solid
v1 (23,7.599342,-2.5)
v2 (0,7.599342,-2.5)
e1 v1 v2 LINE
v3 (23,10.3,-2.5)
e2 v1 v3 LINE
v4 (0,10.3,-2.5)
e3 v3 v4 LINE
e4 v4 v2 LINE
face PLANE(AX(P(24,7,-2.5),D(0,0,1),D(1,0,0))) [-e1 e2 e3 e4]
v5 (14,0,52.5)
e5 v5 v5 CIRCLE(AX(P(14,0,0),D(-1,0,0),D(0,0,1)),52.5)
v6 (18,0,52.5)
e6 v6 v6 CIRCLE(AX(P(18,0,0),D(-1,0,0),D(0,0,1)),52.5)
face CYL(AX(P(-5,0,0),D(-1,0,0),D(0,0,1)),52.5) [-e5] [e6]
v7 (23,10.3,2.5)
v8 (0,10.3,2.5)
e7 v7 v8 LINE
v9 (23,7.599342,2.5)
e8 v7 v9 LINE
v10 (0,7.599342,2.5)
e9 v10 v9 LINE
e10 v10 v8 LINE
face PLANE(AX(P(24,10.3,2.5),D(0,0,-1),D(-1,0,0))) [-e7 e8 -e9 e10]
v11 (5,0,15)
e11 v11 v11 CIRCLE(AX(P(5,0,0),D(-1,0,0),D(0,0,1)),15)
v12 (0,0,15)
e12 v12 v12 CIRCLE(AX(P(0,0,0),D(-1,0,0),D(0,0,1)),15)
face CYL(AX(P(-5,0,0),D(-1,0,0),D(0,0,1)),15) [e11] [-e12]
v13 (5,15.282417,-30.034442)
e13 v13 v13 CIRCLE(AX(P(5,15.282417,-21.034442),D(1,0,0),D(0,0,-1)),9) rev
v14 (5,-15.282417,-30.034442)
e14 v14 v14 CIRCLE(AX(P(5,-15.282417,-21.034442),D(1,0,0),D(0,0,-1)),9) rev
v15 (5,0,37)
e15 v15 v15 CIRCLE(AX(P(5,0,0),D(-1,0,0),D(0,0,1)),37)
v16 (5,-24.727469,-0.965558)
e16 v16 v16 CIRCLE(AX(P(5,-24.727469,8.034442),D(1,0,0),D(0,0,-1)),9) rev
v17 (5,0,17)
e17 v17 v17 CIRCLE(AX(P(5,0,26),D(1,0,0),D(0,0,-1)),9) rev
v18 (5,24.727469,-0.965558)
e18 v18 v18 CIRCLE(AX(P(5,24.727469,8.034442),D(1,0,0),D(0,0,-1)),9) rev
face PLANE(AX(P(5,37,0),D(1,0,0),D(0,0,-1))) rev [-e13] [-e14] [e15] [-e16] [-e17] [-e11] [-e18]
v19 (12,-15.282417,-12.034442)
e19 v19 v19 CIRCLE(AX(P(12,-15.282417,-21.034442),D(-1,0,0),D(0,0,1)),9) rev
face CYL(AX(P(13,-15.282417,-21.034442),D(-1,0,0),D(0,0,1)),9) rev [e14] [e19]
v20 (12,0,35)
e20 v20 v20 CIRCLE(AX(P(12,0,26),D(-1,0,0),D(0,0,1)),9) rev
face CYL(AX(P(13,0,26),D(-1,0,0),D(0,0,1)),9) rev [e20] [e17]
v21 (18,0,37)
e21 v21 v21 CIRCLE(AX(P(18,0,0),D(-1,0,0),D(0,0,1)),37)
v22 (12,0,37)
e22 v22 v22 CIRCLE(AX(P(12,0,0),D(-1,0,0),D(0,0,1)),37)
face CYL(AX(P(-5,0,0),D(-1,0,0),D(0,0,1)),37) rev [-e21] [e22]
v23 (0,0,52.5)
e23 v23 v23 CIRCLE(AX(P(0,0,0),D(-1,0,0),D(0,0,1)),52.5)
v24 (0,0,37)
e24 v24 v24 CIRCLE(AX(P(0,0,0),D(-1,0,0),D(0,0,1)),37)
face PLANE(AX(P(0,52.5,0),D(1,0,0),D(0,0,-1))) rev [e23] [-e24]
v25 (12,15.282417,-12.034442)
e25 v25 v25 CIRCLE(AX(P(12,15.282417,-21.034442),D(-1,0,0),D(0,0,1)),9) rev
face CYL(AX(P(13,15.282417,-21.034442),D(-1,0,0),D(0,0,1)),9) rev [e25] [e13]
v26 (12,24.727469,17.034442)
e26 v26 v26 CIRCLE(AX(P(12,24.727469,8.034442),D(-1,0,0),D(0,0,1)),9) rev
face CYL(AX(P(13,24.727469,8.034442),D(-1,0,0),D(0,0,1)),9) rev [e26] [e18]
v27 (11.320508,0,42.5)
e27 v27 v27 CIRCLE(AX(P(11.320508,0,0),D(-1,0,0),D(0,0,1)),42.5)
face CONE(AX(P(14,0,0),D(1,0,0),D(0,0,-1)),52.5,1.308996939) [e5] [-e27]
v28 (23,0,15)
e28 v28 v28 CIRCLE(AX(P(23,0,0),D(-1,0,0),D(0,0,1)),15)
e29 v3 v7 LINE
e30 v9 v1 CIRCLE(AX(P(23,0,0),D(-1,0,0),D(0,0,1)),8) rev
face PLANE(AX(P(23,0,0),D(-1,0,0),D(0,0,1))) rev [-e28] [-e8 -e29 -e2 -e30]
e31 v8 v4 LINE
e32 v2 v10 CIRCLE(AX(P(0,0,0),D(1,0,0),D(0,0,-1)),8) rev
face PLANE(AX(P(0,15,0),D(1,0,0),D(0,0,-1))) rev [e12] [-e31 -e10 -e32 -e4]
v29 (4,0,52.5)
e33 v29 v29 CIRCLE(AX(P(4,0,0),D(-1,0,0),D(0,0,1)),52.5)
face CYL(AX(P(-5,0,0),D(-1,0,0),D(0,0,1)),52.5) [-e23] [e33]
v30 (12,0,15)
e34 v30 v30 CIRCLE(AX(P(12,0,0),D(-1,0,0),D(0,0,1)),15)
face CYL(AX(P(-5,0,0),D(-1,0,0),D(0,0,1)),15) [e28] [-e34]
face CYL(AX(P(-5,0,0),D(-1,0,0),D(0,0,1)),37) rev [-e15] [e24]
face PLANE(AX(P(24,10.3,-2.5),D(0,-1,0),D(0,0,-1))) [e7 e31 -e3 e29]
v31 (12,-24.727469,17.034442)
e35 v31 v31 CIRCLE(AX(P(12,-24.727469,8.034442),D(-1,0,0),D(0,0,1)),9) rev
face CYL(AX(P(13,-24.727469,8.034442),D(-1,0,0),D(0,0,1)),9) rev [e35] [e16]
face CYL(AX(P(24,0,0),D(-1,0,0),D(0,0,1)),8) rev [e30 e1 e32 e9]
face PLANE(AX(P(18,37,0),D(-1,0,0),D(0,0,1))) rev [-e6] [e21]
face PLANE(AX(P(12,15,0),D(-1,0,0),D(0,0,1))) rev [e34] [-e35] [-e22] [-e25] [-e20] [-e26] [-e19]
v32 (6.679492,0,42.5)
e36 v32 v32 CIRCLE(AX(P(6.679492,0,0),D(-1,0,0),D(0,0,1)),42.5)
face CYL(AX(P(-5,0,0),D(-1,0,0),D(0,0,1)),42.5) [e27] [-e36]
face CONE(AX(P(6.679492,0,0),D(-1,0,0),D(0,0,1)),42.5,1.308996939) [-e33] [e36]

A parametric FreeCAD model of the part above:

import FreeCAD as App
import Part
import Sketcher

V = App.Vector
Q = App.Units.Quantity

doc = App.newDocument("Part")
body = doc.addObject("PartDesign::Body", "Body")

# Sketch on XY plane
sketch1 = doc.addObject("Sketcher::SketchObject", "Sketch")
body.addObject(sketch1)
sketch1.AttachmentSupport = (doc.XY_Plane, [""])
sketch1.MapMode = "FlatFace"
sketch1.addGeometry([
    Part.LineSegment(V(0, 0, 0), V(23, 0, 0)),  # 0
    Part.LineSegment(V(23, 0, 0), V(23, 15, 0)),  # 1
    Part.LineSegment(V(23, 15, 0), V(12, 15, 0)),  # 2
    Part.LineSegment(V(12, 15, 0), V(12, 37, 0)),  # 3
    Part.LineSegment(V(12, 37, 0), V(18, 37, 0)),  # 4
    Part.LineSegment(V(18, 37, 0), V(18, 52.5, 0)),  # 5
    Part.LineSegment(V(18, 52.5, 0), V(14, 52.5, 0)),  # 6
    Part.LineSegment(V(14, 52.5, 0), V(11.3, 42.5, 0)),  # 7
    Part.LineSegment(V(11.3, 42.5, 0), V(6.7, 42.5, 0)),  # 8
    Part.LineSegment(V(6.7, 42.5, 0), V(4, 52.5, 0)),  # 9
    Part.LineSegment(V(4, 52.5, 0), V(0, 52.5, 0)),  # 10
    Part.LineSegment(V(0, 52.5, 0), V(0, 37, 0)),  # 11
    Part.LineSegment(V(0, 37, 0), V(5, 37, 0)),  # 12
    Part.LineSegment(V(5, 37, 0), V(5, 15, 0)),  # 13
    Part.LineSegment(V(5, 15, 0), V(0, 15, 0)),  # 14
    Part.LineSegment(V(0, 15, 0), V(0, 0, 0)),  # 15
], False)
sketch1.addConstraint([
    Sketcher.Constraint("Coincident", 0, 2, 1, 1),
    Sketcher.Constraint("Coincident", 1, 2, 2, 1),
    Sketcher.Constraint("Coincident", 2, 2, 3, 1),
    Sketcher.Constraint("Coincident", 3, 2, 4, 1),
    Sketcher.Constraint("Coincident", 4, 2, 5, 1),
    Sketcher.Constraint("Coincident", 5, 2, 6, 1),
    Sketcher.Constraint("Coincident", 6, 2, 7, 1),
    Sketcher.Constraint("Coincident", 7, 2, 8, 1),
    Sketcher.Constraint("Coincident", 8, 2, 9, 1),
    Sketcher.Constraint("Coincident", 9, 2, 10, 1),
    Sketcher.Constraint("Coincident", 10, 2, 11, 1),
    Sketcher.Constraint("Coincident", 11, 2, 12, 1),
    Sketcher.Constraint("Coincident", 12, 2, 13, 1),
    Sketcher.Constraint("Coincident", 13, 2, 14, 1),
    Sketcher.Constraint("Coincident", 14, 2, 15, 1),
    Sketcher.Constraint("Coincident", 15, 2, 0, 1),
    Sketcher.Constraint("Horizontal", 0),
    Sketcher.Constraint("Vertical", 1),
    Sketcher.Constraint("Horizontal", 2),
    Sketcher.Constraint("Vertical", 3),
    Sketcher.Constraint("Horizontal", 4),
    Sketcher.Constraint("Vertical", 5),
    Sketcher.Constraint("Horizontal", 6),
    Sketcher.Constraint("Horizontal", 8),
    Sketcher.Constraint("Horizontal", 10),
    Sketcher.Constraint("Vertical", 11),
    Sketcher.Constraint("Horizontal", 12),
    Sketcher.Constraint("Vertical", 13),
    Sketcher.Constraint("Horizontal", 14),
    Sketcher.Constraint("Vertical", 15),
    Sketcher.Constraint("Coincident", 15, 2, -1, 1),
    Sketcher.Constraint("PointOnObject", 10, 2, -2),
    Sketcher.Constraint("Horizontal", 6, 2, 9, 2),
    Sketcher.Constraint("Horizontal", 4, 2, 11, 2),
    Sketcher.Constraint("Horizontal", 2, 2, 13, 2),
    Sketcher.Constraint("Equal", 6, 10),
    Sketcher.Constraint("Equal", 7, 9),
    Sketcher.Constraint("DistanceX", 0, 1, 0, 2, 23.0),
    Sketcher.Constraint("DistanceX", 2, 2, 2, 1, 11.0),
    Sketcher.Constraint("DistanceX", 4, 1, 4, 2, 6.0),
    Sketcher.Constraint("DistanceX", 6, 2, 6, 1, 4.0),
    Sketcher.Constraint("DistanceX", 12, 1, 12, 2, 5.0),
    Sketcher.Constraint("DistanceY", 1, 1, 1, 2, 15.0),
    Sketcher.Constraint("DistanceY", 3, 1, 3, 2, 22.0),
    Sketcher.Constraint("Angle", 7, Q("-105 deg")),
    Sketcher.Constraint("DistanceY", 5, 1, 5, 2, 15.5),
    Sketcher.Constraint("DistanceY", 7, 2, 6, 2, 10.0),
])
revolution = doc.addObject("PartDesign::Revolution", "Revolution")
body.addObject(revolution)
revolution.Profile = sketch1
revolution.ReferenceAxis = (sketch1, ["H_Axis"])
revolution.Angle = 360

# Sketch on YZ plane
sketch2 = doc.addObject("Sketcher::SketchObject", "Sketch001")
body.addObject(sketch2)
sketch2.AttachmentSupport = (doc.YZ_Plane, [""])
sketch2.MapMode = "FlatFace"
sketch2.AttachmentOffset = App.Placement(V(0, 0, -1), App.Rotation())
sketch2.addGeometry(Part.Circle(V(0, 0, 0), V(0, 0, 1), 8), False)
sketch2.addConstraint([
    Sketcher.Constraint("Coincident", 0, 3, -1, 1),
    Sketcher.Constraint("Diameter", 0, 16.0),
])
pocket1 = doc.addObject("PartDesign::Pocket", "Pocket")
body.addObject(pocket1)
pocket1.Profile = sketch2
pocket1.Length = 25
pocket1.Reversed = True

# Sketch on YZ plane
sketch3 = doc.addObject("Sketcher::SketchObject", "Sketch002")
body.addObject(sketch3)
sketch3.AttachmentSupport = (doc.YZ_Plane, [""])
sketch3.MapMode = "FlatFace"
sketch3.AttachmentOffset = App.Placement(V(0, 0, -1), App.Rotation())
sketch3.addGeometry([
    Part.LineSegment(V(10.3, 2.5, 0), V(7, 2.5, 0)),
    Part.LineSegment(V(7, 2.5, 0), V(7, -2.5, 0)),
    Part.LineSegment(V(7, -2.5, 0), V(10.3, -2.5, 0)),
    Part.LineSegment(V(10.3, -2.5, 0), V(10.3, 2.5, 0)),
], False)
sketch3.addConstraint([
    Sketcher.Constraint("Coincident", 0, 2, 1, 1),
    Sketcher.Constraint("Coincident", 1, 2, 2, 1),
    Sketcher.Constraint("Coincident", 2, 2, 3, 1),
    Sketcher.Constraint("Coincident", 3, 2, 0, 1),
    Sketcher.Constraint("Horizontal", 0),
    Sketcher.Constraint("Vertical", 1),
    Sketcher.Constraint("Horizontal", 2),
    Sketcher.Constraint("Vertical", 3),
    Sketcher.Constraint("DistanceY", 1, 2, 1, 1, 5.0),
    Sketcher.Constraint("DistanceX", 0, 2, 0, 1, 3.3),
    Sketcher.Constraint("DistanceX", -1, 1, 0, 2, 7.0),
    Sketcher.Constraint("DistanceY", -1, 1, 0, 2, 2.5),
])
pocket2 = doc.addObject("PartDesign::Pocket", "Pocket001")
body.addObject(pocket2)
pocket2.Profile = sketch3
pocket2.Length = 25
pocket2.Reversed = True

# Sketch on YZ plane
sketch4 = doc.addObject("Sketcher::SketchObject", "Sketch003")
body.addObject(sketch4)
sketch4.AttachmentSupport = (doc.YZ_Plane, [""])
sketch4.MapMode = "FlatFace"
sketch4.AttachmentOffset = App.Placement(V(0, 0, 4), App.Rotation())
sketch4.addGeometry(Part.Circle(V(0, 26, 0), V(0, 0, 1), 9), False)
sketch4.addConstraint([
    Sketcher.Constraint("PointOnObject", 0, 3, -2),
    Sketcher.Constraint("Diameter", 0, 18.0),
    Sketcher.Constraint("DistanceY", -1, 1, 0, 3, 26.0),
])
pocket3 = doc.addObject("PartDesign::Pocket", "Pocket002")
body.addObject(pocket3)
pocket3.Profile = sketch4
pocket3.Length = 9
pocket3.Reversed = True

# Sketch on YZ plane
sketch5 = doc.addObject("Sketcher::SketchObject", "Sketch004")
body.addObject(sketch5)
sketch5.AttachmentSupport = (doc.YZ_Plane, [""])
sketch5.MapMode = "FlatFace"
sketch5.AttachmentOffset = App.Placement(V(0, 0, 4), App.Rotation())
sketch5.addGeometry(Part.Circle(V(-25, 8, 0), V(0, 0, 1), 9), False)
sketch5.addConstraint([
    Sketcher.Constraint("Diameter", 0, 18.0),
    Sketcher.Constraint("DistanceX", 0, 3, -1, 1, 24.727469),
    Sketcher.Constraint("DistanceY", -1, 1, 0, 3, 8.034442),
])
pocket4 = doc.addObject("PartDesign::Pocket", "Pocket003")
body.addObject(pocket4)
pocket4.Profile = sketch5
pocket4.Length = 9
pocket4.Reversed = True

# Sketch on YZ plane
sketch6 = doc.addObject("Sketcher::SketchObject", "Sketch005")
body.addObject(sketch6)
sketch6.AttachmentSupport = (doc.YZ_Plane, [""])
sketch6.MapMode = "FlatFace"
sketch6.AttachmentOffset = App.Placement(V(0, 0, 4), App.Rotation())
sketch6.addGeometry(Part.Circle(V(-15, -21, 0), V(0, 0, 1), 9), False)
sketch6.addConstraint([
    Sketcher.Constraint("Diameter", 0, 18.0),
    Sketcher.Constraint("DistanceY", 0, 3, -1, 1, 21.034442),
    Sketcher.Constraint("DistanceX", 0, 3, -1, 1, 15.282417),
])
pocket5 = doc.addObject("PartDesign::Pocket", "Pocket004")
body.addObject(pocket5)
pocket5.Profile = sketch6
pocket5.Length = 9
pocket5.Reversed = True

# Sketch on YZ plane
sketch7 = doc.addObject("Sketcher::SketchObject", "Sketch006")
body.addObject(sketch7)
sketch7.AttachmentSupport = (doc.YZ_Plane, [""])
sketch7.MapMode = "FlatFace"
sketch7.AttachmentOffset = App.Placement(V(0, 0, 4), App.Rotation())
sketch7.addGeometry(Part.Circle(V(15, -21, 0), V(0, 0, 1), 9), False)
sketch7.addConstraint([
    Sketcher.Constraint("Diameter", 0, 18.0),
    Sketcher.Constraint("DistanceY", 0, 3, -1, 1, 21.034442),
    Sketcher.Constraint("DistanceX", -1, 1, 0, 3, 15.282417),
])
pocket6 = doc.addObject("PartDesign::Pocket", "Pocket005")
body.addObject(pocket6)
pocket6.Profile = sketch7
pocket6.Length = 9
pocket6.Reversed = True

# Sketch on YZ plane
sketch8 = doc.addObject("Sketcher::SketchObject", "Sketch007")
body.addObject(sketch8)
sketch8.AttachmentSupport = (doc.YZ_Plane, [""])
sketch8.MapMode = "FlatFace"
sketch8.AttachmentOffset = App.Placement(V(0, 0, 4), App.Rotation())
sketch8.addGeometry(Part.Circle(V(25, 8, 0), V(0, 0, 1), 9), False)
sketch8.addConstraint([
    Sketcher.Constraint("Diameter", 0, 18.0),
    Sketcher.Constraint("DistanceX", -1, 1, 0, 3, 24.727469),
    Sketcher.Constraint("DistanceY", -1, 1, 0, 3, 8.034442),
])
pocket7 = doc.addObject("PartDesign::Pocket", "Pocket006")
body.addObject(pocket7)
pocket7.Profile = sketch8
pocket7.Length = 9
pocket7.Reversed = True

doc.recompute()
